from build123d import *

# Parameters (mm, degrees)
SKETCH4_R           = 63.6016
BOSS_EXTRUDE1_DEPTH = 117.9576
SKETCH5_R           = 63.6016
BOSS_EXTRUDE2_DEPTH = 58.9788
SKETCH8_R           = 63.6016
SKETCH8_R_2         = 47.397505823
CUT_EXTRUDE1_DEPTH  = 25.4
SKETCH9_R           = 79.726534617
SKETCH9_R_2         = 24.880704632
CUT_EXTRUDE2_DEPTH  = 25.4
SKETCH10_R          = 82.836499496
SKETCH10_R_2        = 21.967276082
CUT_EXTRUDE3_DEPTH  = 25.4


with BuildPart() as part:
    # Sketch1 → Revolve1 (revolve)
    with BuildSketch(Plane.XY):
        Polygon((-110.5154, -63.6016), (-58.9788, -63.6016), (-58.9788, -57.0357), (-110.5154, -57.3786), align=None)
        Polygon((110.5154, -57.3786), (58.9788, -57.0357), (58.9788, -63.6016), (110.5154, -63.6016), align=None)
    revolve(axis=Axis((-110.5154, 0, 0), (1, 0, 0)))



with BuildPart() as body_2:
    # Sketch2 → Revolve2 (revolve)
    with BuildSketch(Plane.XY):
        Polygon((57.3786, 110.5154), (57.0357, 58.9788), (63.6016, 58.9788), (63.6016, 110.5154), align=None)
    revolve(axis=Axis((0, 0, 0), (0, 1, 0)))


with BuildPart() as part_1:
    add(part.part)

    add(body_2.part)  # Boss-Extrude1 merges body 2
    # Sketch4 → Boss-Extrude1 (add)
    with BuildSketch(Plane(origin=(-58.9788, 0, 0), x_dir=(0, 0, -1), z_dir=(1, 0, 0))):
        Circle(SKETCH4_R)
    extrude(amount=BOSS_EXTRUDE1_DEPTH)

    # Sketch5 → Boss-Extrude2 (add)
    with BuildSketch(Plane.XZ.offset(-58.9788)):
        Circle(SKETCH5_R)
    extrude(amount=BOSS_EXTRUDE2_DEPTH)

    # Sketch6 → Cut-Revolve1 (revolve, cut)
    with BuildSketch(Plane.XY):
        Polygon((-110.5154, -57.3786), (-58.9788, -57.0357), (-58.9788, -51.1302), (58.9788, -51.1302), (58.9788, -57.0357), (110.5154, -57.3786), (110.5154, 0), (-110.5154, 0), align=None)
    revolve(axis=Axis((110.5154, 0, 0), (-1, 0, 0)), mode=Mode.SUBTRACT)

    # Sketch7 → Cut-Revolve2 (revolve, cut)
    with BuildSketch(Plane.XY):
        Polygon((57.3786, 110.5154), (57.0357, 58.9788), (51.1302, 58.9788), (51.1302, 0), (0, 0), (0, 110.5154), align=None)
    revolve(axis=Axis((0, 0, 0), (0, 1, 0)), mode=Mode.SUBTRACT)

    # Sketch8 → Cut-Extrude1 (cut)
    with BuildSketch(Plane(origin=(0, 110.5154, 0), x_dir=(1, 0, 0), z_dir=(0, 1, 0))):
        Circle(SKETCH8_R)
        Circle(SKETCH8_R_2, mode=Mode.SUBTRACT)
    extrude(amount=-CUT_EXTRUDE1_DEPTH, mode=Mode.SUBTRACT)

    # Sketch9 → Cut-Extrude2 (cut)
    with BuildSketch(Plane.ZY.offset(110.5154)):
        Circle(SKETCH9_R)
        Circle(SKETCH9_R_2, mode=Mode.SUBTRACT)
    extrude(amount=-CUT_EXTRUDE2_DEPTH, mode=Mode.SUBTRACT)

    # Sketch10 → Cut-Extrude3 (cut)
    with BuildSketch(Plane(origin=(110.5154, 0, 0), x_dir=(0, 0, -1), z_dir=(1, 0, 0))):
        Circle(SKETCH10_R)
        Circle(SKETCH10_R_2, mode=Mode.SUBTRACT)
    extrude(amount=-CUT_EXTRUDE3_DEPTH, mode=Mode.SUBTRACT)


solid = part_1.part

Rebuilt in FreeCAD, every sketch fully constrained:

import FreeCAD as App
import Part
import Sketcher
from FreeCAD import Vector
Q = App.Units.Quantity

doc = App.newDocument("Part")
params = doc.addObject("Spreadsheet::Sheet", "Params")
for row, (alias, value) in enumerate([
    ("sketch1_width", "2.029 in"),
    ("sketch1_height", "0.245 in"),
    ("revolution_angle", "360 deg"),
    ("sketch2_width", "0.245 in"),
    ("sketch2_height", "2.029 in"),
    ("revolution2_angle", "360 deg"),
    ("sketch3_diameter", "5.008 in"),
    ("pad1_length", "4.644 in"),
    ("sketch4_diameter", "5.008 in"),
    ("pad2_length", "2.322 in"),
    ("sketch5_width", "4.644 in"),
    ("sketch5_width2", "8.702 in"),
    ("sketch5_height", "2.259 in"),
    ("groove_angle", "360 deg"),
    ("sketch6_width", "2.259 in"),
    ("sketch6_width2", "2.013 in"),
    ("sketch6_height", "4.351 in"),
    ("sketch6_height2", "2.322 in"),
    ("groove2_angle", "360 deg"),
    ("sketch7_diameter", "5.008 in"),
    ("pocket1_length", "1 in"),
    ("pocket2_length", "1 in"),
    ("pocket3_length", "1 in"),
], start=1):
    params.set(f"A{row}", alias)
    params.set(f"B{row}", "=" + value)
    params.setAlias(f"B{row}", alias)

body = doc.addObject("PartDesign::Body", "Body")
body.AllowCompound = True

# Sketch on XY plane
sketch1 = body.newObject("Sketcher::SketchObject", "Sketch")
sketch1.AttachmentSupport = (doc.getObject("XY_Plane"), [""])
sketch1.MapMode = "FlatFace"
sketch1.addGeometry(Part.LineSegment(Vector(-111, -64, 0), Vector(-59, -64, 0)), False)
sketch1.addGeometry(Part.LineSegment(Vector(-59, -64, 0), Vector(-59, -57, 0)), False)
sketch1.addGeometry(Part.LineSegment(Vector(-59, -57, 0), Vector(-111, -57, 0)), False)
sketch1.addGeometry(Part.LineSegment(Vector(-111, -57, 0), Vector(-111, -64, 0)), False)
sketch1.addGeometry(Part.LineSegment(Vector(111, -57, 0), Vector(59, -57, 0)), False)
sketch1.addGeometry(Part.LineSegment(Vector(59, -57, 0), Vector(59, -64, 0)), False)
sketch1.addGeometry(Part.LineSegment(Vector(59, -64, 0), Vector(111, -64, 0)), False)
sketch1.addGeometry(Part.LineSegment(Vector(111, -64, 0), Vector(111, -57, 0)), False)
sketch1.addConstraint(Sketcher.Constraint("Coincident", 0, 2, 1, 1))
sketch1.addConstraint(Sketcher.Constraint("Coincident", 1, 2, 2, 1))
sketch1.addConstraint(Sketcher.Constraint("Coincident", 2, 2, 3, 1))
sketch1.addConstraint(Sketcher.Constraint("Coincident", 3, 2, 0, 1))
sketch1.addConstraint(Sketcher.Constraint("Coincident", 4, 2, 5, 1))
sketch1.addConstraint(Sketcher.Constraint("Coincident", 5, 2, 6, 1))
sketch1.addConstraint(Sketcher.Constraint("Coincident", 6, 2, 7, 1))
sketch1.addConstraint(Sketcher.Constraint("Coincident", 7, 2, 4, 1))
sketch1.addConstraint(Sketcher.Constraint("Horizontal", 0))
sketch1.addConstraint(Sketcher.Constraint("Vertical", 1))
sketch1.addConstraint(Sketcher.Constraint("Vertical", 3))
sketch1.addConstraint(Sketcher.Constraint("Vertical", 5))
sketch1.addConstraint(Sketcher.Constraint("Horizontal", 6))
sketch1.addConstraint(Sketcher.Constraint("Vertical", 7))
sketch1.addConstraint(Sketcher.Constraint("Symmetric", 1, 2, 4, 2, -2))
sketch1.addConstraint(Sketcher.Constraint("Symmetric", 3, 2, 6, 2, -2))
sketch1.addConstraint(Sketcher.Constraint("Horizontal", 2, 2, 7, 2))
sketch1.addConstraint(Sketcher.Constraint("DistanceX", 0, 1, 0, 2, Q("2.029 in")))
sketch1.addConstraint(Sketcher.Constraint("DistanceY", 3, 2, 3, 1, Q("0.245 in")))
sketch1.addConstraint(Sketcher.Constraint("DistanceY", 1, 1, 1, 2, Q("0.2585 in")))
sketch1.addConstraint(Sketcher.Constraint("DistanceX", 0, 2, -1, 1, Q("2.322 in")))
sketch1.addConstraint(Sketcher.Constraint("DistanceY", 0, 2, -1, 1, Q("2.504 in")))
sketch1.setExpression("Constraints[17]", "Params.sketch1_width")
sketch1.setExpression("Constraints[18]", "Params.sketch1_height")
revolution = body.newObject("PartDesign::Revolution", "Revolution")
revolution.Profile = sketch1
revolution.ReferenceAxis = (sketch1, ["H_Axis"])
revolution.setExpression("Angle", "Params.revolution_angle")
body2 = doc.addObject("PartDesign::Body", "Body001")

# Sketch on XY plane
sketch2 = body2.newObject("Sketcher::SketchObject", "Sketch001")
sketch2.AttachmentSupport = (doc.getObject("XY_Plane001"), [""])
sketch2.MapMode = "FlatFace"
sketch2.addGeometry(Part.LineSegment(Vector(57, 111, 0), Vector(57, 59, 0)), False)
sketch2.addGeometry(Part.LineSegment(Vector(57, 59, 0), Vector(64, 59, 0)), False)
sketch2.addGeometry(Part.LineSegment(Vector(64, 59, 0), Vector(64, 111, 0)), False)
sketch2.addGeometry(Part.LineSegment(Vector(64, 111, 0), Vector(57, 111, 0)), False)
sketch2.addConstraint(Sketcher.Constraint("Coincident", 0, 2, 1, 1))
sketch2.addConstraint(Sketcher.Constraint("Coincident", 1, 2, 2, 1))
sketch2.addConstraint(Sketcher.Constraint("Coincident", 2, 2, 3, 1))
sketch2.addConstraint(Sketcher.Constraint("Coincident", 3, 2, 0, 1))
sketch2.addConstraint(Sketcher.Constraint("Horizontal", 1))
sketch2.addConstraint(Sketcher.Constraint("Vertical", 2))
sketch2.addConstraint(Sketcher.Constraint("Horizontal", 3))
sketch2.addConstraint(Sketcher.Constraint("DistanceX", 3, 2, 3, 1, Q("0.245 in")))
sketch2.addConstraint(Sketcher.Constraint("DistanceY", 2, 1, 2, 2, Q("2.029 in")))
sketch2.addConstraint(Sketcher.Constraint("DistanceX", 1, 1, 1, 2, Q("0.2585 in")))
sketch2.addConstraint(Sketcher.Constraint("DistanceY", -1, 1, 0, 2, Q("2.322 in")))
sketch2.addConstraint(Sketcher.Constraint("DistanceX", -1, 1, 1, 2, Q("2.504 in")))
sketch2.setExpression("Constraints[7]", "Params.sketch2_width")
sketch2.setExpression("Constraints[8]", "Params.sketch2_height")
revolution2 = body2.newObject("PartDesign::Revolution", "Revolution001")
revolution2.Profile = sketch2
revolution2.ReferenceAxis = (sketch2, ["V_Axis"])
revolution2.setExpression("Angle", "Params.revolution2_angle")
doc.recompute()

boolean = body.newObject("PartDesign::Boolean", "Boolean")
boolean.Type = "Fuse"
boolean.addObjects([body2])

# Sketch on YZ plane
sketch3 = body.newObject("Sketcher::SketchObject", "Sketch002")
sketch3.AttachmentSupport = (doc.getObject("YZ_Plane"), [""])
sketch3.MapMode = "FlatFace"
sketch3.AttachmentOffset = App.Placement(Vector(0, 0, -2.322 * 25.4), App.Rotation())
sketch3.addGeometry(Part.Circle(Vector(0, 0, 0), Vector(0, 0, 1), 64), False)
sketch3.addConstraint(Sketcher.Constraint("Coincident", 0, 3, -1, 1))
sketch3.addConstraint(Sketcher.Constraint("Diameter", 0, Q("5.008 in")))
sketch3.setExpression("Constraints[1]", "Params.sketch3_diameter")
pad1 = body.newObject("PartDesign::Pad", "Pad")
pad1.Profile = sketch3
pad1.setExpression("Length", "Params.pad1_length")

# Sketch on XZ plane
sketch4 = body.newObject("Sketcher::SketchObject", "Sketch003")
sketch4.AttachmentSupport = (doc.getObject("XZ_Plane"), [""])
sketch4.MapMode = "FlatFace"
sketch4.AttachmentOffset = App.Placement(Vector(0, 0, -2.322 * 25.4), App.Rotation())
sketch4.addGeometry(Part.Circle(Vector(0, 0, 0), Vector(0, 0, 1), 64), False)
sketch4.addConstraint(Sketcher.Constraint("Coincident", 0, 3, -1, 1))
sketch4.addConstraint(Sketcher.Constraint("Diameter", 0, Q("5.008 in")))
sketch4.setExpression("Constraints[1]", "Params.sketch4_diameter")
pad2 = body.newObject("PartDesign::Pad", "Pad001")
pad2.Profile = sketch4
pad2.setExpression("Length", "Params.pad2_length")

# Sketch on XY plane
sketch5 = body.newObject("Sketcher::SketchObject", "Sketch004")
sketch5.AttachmentSupport = (doc.getObject("XY_Plane"), [""])
sketch5.MapMode = "FlatFace"
sketch5.addGeometry(Part.LineSegment(Vector(-111, -57, 0), Vector(-59, -57, 0)), False)
sketch5.addGeometry(Part.LineSegment(Vector(-59, -57, 0), Vector(-59, -51, 0)), False)
sketch5.addGeometry(Part.LineSegment(Vector(-59, -51, 0), Vector(59, -51, 0)), False)
sketch5.addGeometry(Part.LineSegment(Vector(59, -51, 0), Vector(59, -57, 0)), False)
sketch5.addGeometry(Part.LineSegment(Vector(59, -57, 0), Vector(111, -57, 0)), False)
sketch5.addGeometry(Part.LineSegment(Vector(111, -57, 0), Vector(111, 0, 0)), False)
sketch5.addGeometry(Part.LineSegment(Vector(111, 0, 0), Vector(-111, 0, 0)), False)
sketch5.addGeometry(Part.LineSegment(Vector(-111, 0, 0), Vector(-111, -57, 0)), False)
sketch5.addConstraint(Sketcher.Constraint("Coincident", 0, 2, 1, 1))
sketch5.addConstraint(Sketcher.Constraint("Coincident", 1, 2, 2, 1))
sketch5.addConstraint(Sketcher.Constraint("Coincident", 2, 2, 3, 1))
sketch5.addConstraint(Sketcher.Constraint("Coincident", 3, 2, 4, 1))
sketch5.addConstraint(Sketcher.Constraint("Coincident", 4, 2, 5, 1))
sketch5.addConstraint(Sketcher.Constraint("Coincident", 5, 2, 6, 1))
sketch5.addConstraint(Sketcher.Constraint("Coincident", 6, 2, 7, 1))
sketch5.addConstraint(Sketcher.Constraint("Coincident", 7, 2, 0, 1))
sketch5.addConstraint(Sketcher.Constraint("Vertical", 1))
sketch5.addConstraint(Sketcher.Constraint("Horizontal", 2))
sketch5.addConstraint(Sketcher.Constraint("Vertical", 3))
sketch5.addConstraint(Sketcher.Constraint("Vertical", 5))
sketch5.addConstraint(Sketcher.Constraint("Horizontal", 6))
sketch5.addConstraint(Sketcher.Constraint("Vertical", 7))
sketch5.addConstraint(Sketcher.Constraint("Symmetric", 5, 2, 6, 2, -1, 1))
sketch5.addConstraint(Sketcher.Constraint("Symmetric", 0, 2, 3, 2, -2))
sketch5.addConstraint(Sketcher.Constraint("Horizontal", 4, 2, 7, 2))
sketch5.addConstraint(Sketcher.Constraint("DistanceX", 2, 1, 2, 2, Q("4.644 in")))
sketch5.addConstraint(Sketcher.Constraint("DistanceX", 6, 2, 6, 1, Q("8.702 in")))
sketch5.addConstraint(Sketcher.Constraint("DistanceY", 5, 1, 5, 2, Q("2.259 in")))
sketch5.addConstraint(Sketcher.Constraint("DistanceY", 1, 1, 1, 2, Q("0.2325 in")))
sketch5.addConstraint(Sketcher.Constraint("DistanceY", 1, 2, -1, 1, Q("2.013 in")))
sketch5.setExpression("Constraints[17]", "Params.sketch5_width")
sketch5.setExpression("Constraints[18]", "Params.sketch5_width2")
sketch5.setExpression("Constraints[19]", "Params.sketch5_height")
groove = body.newObject("PartDesign::Groove", "Groove")
groove.Profile = sketch5
groove.ReferenceAxis = (sketch5, ["H_Axis"])
groove.setExpression("Angle", "Params.groove_angle")

# Sketch on XY plane
sketch6 = body.newObject("Sketcher::SketchObject", "Sketch005")
sketch6.AttachmentSupport = (doc.getObject("XY_Plane"), [""])
sketch6.MapMode = "FlatFace"
sketch6.addGeometry(Part.LineSegment(Vector(57, 59, 0), Vector(57, 111, 0)), False)
sketch6.addGeometry(Part.LineSegment(Vector(57, 111, 0), Vector(0, 111, 0)), False)
sketch6.addGeometry(Part.LineSegment(Vector(0, 111, 0), Vector(0, 0, 0)), False)
sketch6.addGeometry(Part.LineSegment(Vector(0, 0, 0), Vector(51, 0, 0)), False)
sketch6.addGeometry(Part.LineSegment(Vector(51, 0, 0), Vector(51, 59, 0)), False)
sketch6.addGeometry(Part.LineSegment(Vector(51, 59, 0), Vector(57, 59, 0)), False)
sketch6.addConstraint(Sketcher.Constraint("Coincident", 0, 2, 1, 1))
sketch6.addConstraint(Sketcher.Constraint("Coincident", 1, 2, 2, 1))
sketch6.addConstraint(Sketcher.Constraint("Coincident", 2, 2, 3, 1))
sketch6.addConstraint(Sketcher.Constraint("Coincident", 3, 2, 4, 1))
sketch6.addConstraint(Sketcher.Constraint("Coincident", 4, 2, 5, 1))
sketch6.addConstraint(Sketcher.Constraint("Coincident", 5, 2, 0, 1))
sketch6.addConstraint(Sketcher.Constraint("Horizontal", 1))
sketch6.addConstraint(Sketcher.Constraint("Vertical", 2))
sketch6.addConstraint(Sketcher.Constraint("Horizontal", 3))
sketch6.addConstraint(Sketcher.Constraint("Vertical", 4))
sketch6.addConstraint(Sketcher.Constraint("Horizontal", 5))
sketch6.addConstraint(Sketcher.Constraint("Coincident", 2, 2, -1, 1))
sketch6.addConstraint(Sketcher.Constraint("DistanceX", 1, 2, 1, 1, Q("2.259 in")))
sketch6.addConstraint(Sketcher.Constraint("DistanceX", 3, 1, 3, 2, Q("2.013 in")))
sketch6.addConstraint(Sketcher.Constraint("DistanceY", 2, 2, 2, 1, Q("4.351 in")))
sketch6.addConstraint(Sketcher.Constraint("DistanceY", 4, 1, 4, 2, Q("2.322 in")))
sketch6.addConstraint(Sketcher.Constraint("DistanceX", 5, 1, 5, 2, Q("0.2325 in")))
sketch6.setExpression("Constraints[12]", "Params.sketch6_width")
sketch6.setExpression("Constraints[13]", "Params.sketch6_width2")
sketch6.setExpression("Constraints[14]", "Params.sketch6_height")
sketch6.setExpression("Constraints[15]", "Params.sketch6_height2")
groove2 = body.newObject("PartDesign::Groove", "Groove001")
groove2.Profile = sketch6
groove2.ReferenceAxis = (sketch6, ["V_Axis"])
groove2.setExpression("Angle", "Params.groove2_angle")

# Sketch on XZ plane
sketch7 = body.newObject("Sketcher::SketchObject", "Sketch006")
sketch7.AttachmentSupport = (doc.getObject("XZ_Plane"), [""])
sketch7.MapMode = "FlatFace"
sketch7.AttachmentOffset = App.Placement(Vector(0, 0, -4.351 * 25.4), App.Rotation())
sketch7.addGeometry(Part.Circle(Vector(0, 0, 0), Vector(0, 0, 1), 64), False)
sketch7.addGeometry(Part.Circle(Vector(0, 0, 0), Vector(0, 0, 1), 47), False)
sketch7.addConstraint(Sketcher.Constraint("Coincident", 0, 3, -1, 1))
sketch7.addConstraint(Sketcher.Constraint("Coincident", 1, 3, -1, 1))
sketch7.addConstraint(Sketcher.Constraint("Diameter", 0, Q("5.008 in")))
sketch7.addConstraint(Sketcher.Constraint("Diameter", 1, 94.795012))
sketch7.setExpression("Constraints[2]", "Params.sketch7_diameter")
pocket1 = body.newObject("PartDesign::Pocket", "Pocket")
pocket1.Profile = sketch7
pocket1.setExpression("Length", "Params.pocket1_length")
pocket1.Reversed = True

# Sketch on YZ plane
sketch8 = body.newObject("Sketcher::SketchObject", "Sketch007")
sketch8.AttachmentSupport = (doc.getObject("YZ_Plane"), [""])
sketch8.MapMode = "FlatFace"
sketch8.AttachmentOffset = App.Placement(Vector(0, 0, -4.351 * 25.4), App.Rotation())
sketch8.addGeometry(Part.Circle(Vector(0, 0, 0), Vector(0, 0, 1), 80), False)
sketch8.addGeometry(Part.Circle(Vector(0, 0, 0), Vector(0, 0, 1), 25), False)
sketch8.addConstraint(Sketcher.Constraint("Coincident", 0, 3, -1, 1))
sketch8.addConstraint(Sketcher.Constraint("Coincident", 1, 3, -1, 1))
sketch8.addConstraint(Sketcher.Constraint("Diameter", 0, 159.453069))
sketch8.addConstraint(Sketcher.Constraint("Diameter", 1, 49.761409))
pocket2 = body.newObject("PartDesign::Pocket", "Pocket001")
pocket2.Profile = sketch8
pocket2.setExpression("Length", "Params.pocket2_length")
pocket2.Reversed = True

# Sketch on YZ plane
sketch9 = body.newObject("Sketcher::SketchObject", "Sketch008")
sketch9.AttachmentSupport = (doc.getObject("YZ_Plane"), [""])
sketch9.MapMode = "FlatFace"
sketch9.AttachmentOffset = App.Placement(Vector(0, 0, 4.351 * 25.4), App.Rotation())
sketch9.addGeometry(Part.Circle(Vector(0, 0, 0), Vector(0, 0, 1), 83), False)
sketch9.addGeometry(Part.Circle(Vector(0, 0, 0), Vector(0, 0, 1), 22), False)
sketch9.addConstraint(Sketcher.Constraint("Coincident", 0, 3, -1, 1))
sketch9.addConstraint(Sketcher.Constraint("Coincident", 1, 3, -1, 1))
sketch9.addConstraint(Sketcher.Constraint("Diameter", 0, 165.672999))
sketch9.addConstraint(Sketcher.Constraint("Diameter", 1, 43.934552))
pocket3 = body.newObject("PartDesign::Pocket", "Pocket002")
pocket3.Profile = sketch9
pocket3.setExpression("Length", "Params.pocket3_length")

doc.recompute()
